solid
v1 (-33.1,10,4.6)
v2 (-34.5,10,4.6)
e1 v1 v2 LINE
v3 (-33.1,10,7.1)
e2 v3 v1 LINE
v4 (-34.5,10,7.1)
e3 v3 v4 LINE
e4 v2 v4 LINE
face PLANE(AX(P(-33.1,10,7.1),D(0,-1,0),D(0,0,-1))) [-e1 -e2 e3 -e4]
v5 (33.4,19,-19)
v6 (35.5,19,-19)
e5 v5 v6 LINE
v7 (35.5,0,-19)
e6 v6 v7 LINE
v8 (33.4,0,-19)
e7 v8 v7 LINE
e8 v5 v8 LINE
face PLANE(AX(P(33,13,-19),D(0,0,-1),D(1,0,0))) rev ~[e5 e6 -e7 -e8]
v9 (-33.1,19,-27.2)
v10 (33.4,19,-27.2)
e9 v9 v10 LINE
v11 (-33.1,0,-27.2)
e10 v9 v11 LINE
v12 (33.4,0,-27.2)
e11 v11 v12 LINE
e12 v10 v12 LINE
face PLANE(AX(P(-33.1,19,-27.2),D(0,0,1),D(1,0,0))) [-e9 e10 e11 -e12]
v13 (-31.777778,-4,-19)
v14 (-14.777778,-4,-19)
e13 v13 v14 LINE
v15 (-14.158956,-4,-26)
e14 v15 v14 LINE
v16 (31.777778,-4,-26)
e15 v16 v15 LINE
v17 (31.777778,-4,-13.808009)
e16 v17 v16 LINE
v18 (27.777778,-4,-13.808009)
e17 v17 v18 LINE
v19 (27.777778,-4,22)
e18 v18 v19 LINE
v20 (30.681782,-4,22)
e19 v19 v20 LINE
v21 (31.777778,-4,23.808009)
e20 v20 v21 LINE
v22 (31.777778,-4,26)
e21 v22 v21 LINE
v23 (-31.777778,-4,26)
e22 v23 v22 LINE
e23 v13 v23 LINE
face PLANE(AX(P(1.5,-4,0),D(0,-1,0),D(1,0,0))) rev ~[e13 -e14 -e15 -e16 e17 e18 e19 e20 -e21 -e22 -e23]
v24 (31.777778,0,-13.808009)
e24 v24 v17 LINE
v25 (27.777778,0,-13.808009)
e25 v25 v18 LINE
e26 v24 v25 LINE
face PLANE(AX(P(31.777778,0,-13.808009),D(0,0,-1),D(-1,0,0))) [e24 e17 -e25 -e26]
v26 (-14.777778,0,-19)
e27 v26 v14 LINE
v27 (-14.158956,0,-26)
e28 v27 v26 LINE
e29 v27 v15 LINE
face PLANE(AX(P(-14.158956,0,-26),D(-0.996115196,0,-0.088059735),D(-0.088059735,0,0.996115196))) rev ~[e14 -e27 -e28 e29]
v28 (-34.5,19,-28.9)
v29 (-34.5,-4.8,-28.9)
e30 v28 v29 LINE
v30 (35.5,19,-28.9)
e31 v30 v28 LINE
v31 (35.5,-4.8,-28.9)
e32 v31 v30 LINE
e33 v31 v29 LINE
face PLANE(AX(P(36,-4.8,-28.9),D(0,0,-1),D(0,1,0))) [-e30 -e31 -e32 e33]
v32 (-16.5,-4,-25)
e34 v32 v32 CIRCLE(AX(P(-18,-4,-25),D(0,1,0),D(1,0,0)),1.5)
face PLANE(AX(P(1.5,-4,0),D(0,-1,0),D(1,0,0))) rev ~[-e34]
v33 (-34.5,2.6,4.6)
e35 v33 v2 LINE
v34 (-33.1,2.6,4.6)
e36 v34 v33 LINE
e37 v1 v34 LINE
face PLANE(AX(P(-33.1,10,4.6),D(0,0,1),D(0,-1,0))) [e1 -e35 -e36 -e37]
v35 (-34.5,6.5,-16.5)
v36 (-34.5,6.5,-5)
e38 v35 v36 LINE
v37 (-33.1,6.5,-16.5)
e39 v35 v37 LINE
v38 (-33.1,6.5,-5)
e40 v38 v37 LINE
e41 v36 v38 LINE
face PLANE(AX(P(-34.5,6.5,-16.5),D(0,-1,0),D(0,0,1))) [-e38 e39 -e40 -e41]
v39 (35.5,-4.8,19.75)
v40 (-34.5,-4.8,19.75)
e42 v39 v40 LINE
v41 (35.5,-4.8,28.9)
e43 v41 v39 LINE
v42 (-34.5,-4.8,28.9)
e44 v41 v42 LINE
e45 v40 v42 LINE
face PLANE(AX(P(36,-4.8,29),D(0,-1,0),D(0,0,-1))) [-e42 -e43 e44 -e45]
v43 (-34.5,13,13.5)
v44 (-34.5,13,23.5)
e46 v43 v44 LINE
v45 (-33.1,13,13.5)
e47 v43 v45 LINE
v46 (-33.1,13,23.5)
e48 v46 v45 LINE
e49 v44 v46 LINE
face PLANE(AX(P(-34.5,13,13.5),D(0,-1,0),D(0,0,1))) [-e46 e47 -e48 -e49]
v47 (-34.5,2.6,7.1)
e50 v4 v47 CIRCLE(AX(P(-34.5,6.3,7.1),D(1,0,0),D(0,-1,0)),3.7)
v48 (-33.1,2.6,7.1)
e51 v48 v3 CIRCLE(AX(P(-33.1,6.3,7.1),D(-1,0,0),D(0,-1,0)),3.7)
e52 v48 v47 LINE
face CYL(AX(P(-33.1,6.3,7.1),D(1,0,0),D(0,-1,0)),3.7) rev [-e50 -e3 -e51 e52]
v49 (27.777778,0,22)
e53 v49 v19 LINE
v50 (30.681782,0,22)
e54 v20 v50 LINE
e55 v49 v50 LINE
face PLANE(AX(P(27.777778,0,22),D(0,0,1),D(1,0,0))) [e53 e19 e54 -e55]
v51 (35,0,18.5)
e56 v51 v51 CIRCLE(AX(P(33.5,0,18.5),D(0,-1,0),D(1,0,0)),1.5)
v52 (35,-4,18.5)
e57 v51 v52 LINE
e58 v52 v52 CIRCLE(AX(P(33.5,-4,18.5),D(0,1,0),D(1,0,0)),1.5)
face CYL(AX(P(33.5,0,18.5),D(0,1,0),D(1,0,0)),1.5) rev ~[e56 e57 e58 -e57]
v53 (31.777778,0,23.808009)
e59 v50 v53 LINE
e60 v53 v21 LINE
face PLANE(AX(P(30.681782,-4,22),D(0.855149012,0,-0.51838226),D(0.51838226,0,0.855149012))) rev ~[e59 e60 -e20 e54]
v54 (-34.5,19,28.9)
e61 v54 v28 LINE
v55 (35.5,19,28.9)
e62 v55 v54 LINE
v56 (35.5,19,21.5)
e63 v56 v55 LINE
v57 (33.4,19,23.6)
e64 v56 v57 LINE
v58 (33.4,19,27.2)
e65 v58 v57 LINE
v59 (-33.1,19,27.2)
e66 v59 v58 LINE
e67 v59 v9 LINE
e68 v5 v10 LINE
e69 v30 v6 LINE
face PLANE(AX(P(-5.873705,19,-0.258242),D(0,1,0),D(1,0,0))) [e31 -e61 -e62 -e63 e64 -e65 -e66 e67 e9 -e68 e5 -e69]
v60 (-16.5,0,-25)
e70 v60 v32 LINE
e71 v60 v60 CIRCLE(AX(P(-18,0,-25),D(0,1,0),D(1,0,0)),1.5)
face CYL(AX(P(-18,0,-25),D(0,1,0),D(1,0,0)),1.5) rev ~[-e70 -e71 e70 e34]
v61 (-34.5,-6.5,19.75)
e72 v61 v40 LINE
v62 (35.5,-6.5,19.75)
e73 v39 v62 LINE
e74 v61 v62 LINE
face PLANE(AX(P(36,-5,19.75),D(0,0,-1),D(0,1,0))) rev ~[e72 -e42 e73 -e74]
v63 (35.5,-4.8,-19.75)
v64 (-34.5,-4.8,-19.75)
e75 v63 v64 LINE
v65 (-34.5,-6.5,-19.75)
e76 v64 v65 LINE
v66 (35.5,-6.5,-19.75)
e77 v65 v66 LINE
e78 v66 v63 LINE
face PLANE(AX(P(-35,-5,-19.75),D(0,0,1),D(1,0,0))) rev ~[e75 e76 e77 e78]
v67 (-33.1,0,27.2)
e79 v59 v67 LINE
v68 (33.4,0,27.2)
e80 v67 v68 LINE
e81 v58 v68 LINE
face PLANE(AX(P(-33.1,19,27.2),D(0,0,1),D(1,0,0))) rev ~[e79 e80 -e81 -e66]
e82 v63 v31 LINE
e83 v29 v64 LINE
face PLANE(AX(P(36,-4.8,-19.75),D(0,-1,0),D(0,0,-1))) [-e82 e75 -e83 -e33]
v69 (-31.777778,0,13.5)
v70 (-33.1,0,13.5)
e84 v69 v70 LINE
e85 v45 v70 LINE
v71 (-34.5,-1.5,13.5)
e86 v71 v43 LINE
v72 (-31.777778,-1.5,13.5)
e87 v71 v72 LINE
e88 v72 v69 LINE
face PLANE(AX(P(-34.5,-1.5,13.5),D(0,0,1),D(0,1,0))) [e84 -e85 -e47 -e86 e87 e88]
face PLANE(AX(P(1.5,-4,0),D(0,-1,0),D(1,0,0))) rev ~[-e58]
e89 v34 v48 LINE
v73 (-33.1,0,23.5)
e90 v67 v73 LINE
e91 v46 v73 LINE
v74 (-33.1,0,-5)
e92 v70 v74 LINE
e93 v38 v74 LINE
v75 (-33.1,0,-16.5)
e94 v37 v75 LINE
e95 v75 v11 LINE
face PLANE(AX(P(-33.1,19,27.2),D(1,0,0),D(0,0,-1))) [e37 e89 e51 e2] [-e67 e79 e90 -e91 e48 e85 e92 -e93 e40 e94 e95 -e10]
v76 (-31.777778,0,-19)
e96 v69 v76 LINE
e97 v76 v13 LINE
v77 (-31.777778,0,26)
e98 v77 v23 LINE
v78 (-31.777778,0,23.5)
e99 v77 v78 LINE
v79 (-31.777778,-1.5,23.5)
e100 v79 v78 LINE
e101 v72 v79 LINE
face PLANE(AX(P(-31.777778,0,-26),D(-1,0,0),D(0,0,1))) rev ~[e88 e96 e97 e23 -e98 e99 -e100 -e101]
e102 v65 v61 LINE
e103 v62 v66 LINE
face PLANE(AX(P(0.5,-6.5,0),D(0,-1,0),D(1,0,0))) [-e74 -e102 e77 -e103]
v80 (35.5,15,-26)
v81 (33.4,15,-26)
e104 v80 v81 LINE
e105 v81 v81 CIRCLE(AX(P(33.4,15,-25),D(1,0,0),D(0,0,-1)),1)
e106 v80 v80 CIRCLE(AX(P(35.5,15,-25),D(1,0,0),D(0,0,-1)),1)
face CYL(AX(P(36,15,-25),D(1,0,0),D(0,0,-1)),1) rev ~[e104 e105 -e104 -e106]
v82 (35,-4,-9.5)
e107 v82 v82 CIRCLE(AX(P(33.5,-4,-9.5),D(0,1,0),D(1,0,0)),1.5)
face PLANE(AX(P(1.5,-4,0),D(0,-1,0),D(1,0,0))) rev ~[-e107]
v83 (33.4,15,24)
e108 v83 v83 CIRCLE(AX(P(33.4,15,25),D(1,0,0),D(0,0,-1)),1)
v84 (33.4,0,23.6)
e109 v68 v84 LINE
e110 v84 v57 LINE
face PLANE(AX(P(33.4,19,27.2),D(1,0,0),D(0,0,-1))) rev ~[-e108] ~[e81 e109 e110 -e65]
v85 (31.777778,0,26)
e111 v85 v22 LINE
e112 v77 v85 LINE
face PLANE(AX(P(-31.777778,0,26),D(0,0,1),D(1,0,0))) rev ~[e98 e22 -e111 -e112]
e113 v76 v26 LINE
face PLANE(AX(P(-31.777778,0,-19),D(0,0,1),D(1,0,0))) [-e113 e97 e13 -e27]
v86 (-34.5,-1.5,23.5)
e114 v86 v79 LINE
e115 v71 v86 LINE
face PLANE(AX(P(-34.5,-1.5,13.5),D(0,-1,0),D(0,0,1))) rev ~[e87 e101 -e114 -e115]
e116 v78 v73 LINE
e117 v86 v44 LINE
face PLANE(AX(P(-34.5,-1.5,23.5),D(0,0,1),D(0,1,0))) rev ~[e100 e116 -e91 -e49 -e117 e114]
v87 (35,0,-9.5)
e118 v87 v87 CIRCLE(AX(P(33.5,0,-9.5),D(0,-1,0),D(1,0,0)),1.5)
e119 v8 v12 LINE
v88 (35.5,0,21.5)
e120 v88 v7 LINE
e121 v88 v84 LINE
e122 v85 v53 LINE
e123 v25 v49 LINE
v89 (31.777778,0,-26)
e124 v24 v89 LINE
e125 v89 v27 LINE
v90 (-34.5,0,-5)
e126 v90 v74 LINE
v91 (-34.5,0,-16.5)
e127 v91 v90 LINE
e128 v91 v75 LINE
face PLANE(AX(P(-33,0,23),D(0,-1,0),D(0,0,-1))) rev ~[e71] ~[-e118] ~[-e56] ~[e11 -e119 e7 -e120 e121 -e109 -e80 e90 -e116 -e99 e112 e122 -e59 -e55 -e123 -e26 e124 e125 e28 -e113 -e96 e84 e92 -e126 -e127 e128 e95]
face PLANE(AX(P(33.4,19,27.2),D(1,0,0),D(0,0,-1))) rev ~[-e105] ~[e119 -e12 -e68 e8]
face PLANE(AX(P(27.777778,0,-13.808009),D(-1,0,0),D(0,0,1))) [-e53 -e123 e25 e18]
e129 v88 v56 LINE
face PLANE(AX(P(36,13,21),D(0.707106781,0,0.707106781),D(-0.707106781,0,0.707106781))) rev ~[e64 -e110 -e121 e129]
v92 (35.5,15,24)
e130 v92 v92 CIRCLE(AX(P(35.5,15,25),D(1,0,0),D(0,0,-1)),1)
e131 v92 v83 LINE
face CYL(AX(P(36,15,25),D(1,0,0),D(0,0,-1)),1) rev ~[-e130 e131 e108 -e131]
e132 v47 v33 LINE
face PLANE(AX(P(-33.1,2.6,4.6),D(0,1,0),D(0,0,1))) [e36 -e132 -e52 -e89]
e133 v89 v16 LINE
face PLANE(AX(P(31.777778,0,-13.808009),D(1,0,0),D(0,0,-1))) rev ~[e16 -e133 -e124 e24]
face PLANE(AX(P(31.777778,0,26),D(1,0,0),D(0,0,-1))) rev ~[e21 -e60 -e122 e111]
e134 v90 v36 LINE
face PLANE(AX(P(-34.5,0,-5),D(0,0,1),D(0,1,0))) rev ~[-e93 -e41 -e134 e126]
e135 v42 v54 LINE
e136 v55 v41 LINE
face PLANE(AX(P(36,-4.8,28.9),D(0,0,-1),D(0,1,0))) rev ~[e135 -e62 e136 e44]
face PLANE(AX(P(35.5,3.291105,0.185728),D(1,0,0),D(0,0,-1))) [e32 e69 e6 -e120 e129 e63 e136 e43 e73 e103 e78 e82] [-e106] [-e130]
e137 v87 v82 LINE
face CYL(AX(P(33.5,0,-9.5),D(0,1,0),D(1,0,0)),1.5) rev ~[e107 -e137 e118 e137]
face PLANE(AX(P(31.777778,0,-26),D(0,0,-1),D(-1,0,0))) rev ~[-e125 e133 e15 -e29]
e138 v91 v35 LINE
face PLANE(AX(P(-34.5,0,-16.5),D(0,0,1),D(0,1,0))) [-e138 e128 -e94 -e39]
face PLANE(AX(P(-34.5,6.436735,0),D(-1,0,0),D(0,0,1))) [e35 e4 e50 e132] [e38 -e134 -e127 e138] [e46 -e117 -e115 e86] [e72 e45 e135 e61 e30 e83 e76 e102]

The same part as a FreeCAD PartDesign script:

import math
import FreeCAD as App
import Part
import Sketcher
from FreeCAD import Vector
Q = App.Units.Quantity


def edges_at(feature, points):
    """Names of the edges that pass closest to the given points."""
    edges = feature.Shape.Edges
    near = lambda p: min(range(len(edges)), key=lambda i: edges[i].distToShape(Part.Vertex(*p))[0])
    return sorted({f"Edge{near(p) + 1}" for p in points})


def add_polygon(sketch, points):
    """Adds a closed chain of lines whose ends are joined by coincident constraints."""
    first, n = sketch.GeometryCount, len(points)
    for a, b in zip(points, points[1:] + points[:1]):
        sketch.addGeometry(Part.LineSegment(App.Vector(*a, 0), App.Vector(*b, 0)), False)
    for i in range(n):
        sketch.addConstraint(Sketcher.Constraint("Coincident", first + i, 2, first + (i + 1) % n, 1))

doc = App.newDocument("Part")
body = doc.addObject("PartDesign::Body", "Body")

sketch1 = body.newObject("Sketcher::SketchObject", "Sketch")
sketch1.AttachmentSupport = (doc.getObject("XZ_Plane"), [""])
sketch1.MapMode = "FlatFace"
add_polygon(sketch1, [(-33, 27), (33, 27), (33, 24), (36, 21), (36, -11), (33, -14), (33, -27), (-33, -27)])
add_polygon(sketch1, [(-31.8, -26), (31.8, -26), (31.8, -13.8), (35, -10.6), (35, 20.6), (31.8, 23.8), (31.8, 26), (-31.8, 26)])
sketch1.addConstraint([
    Sketcher.Constraint("Horizontal", 0),
    Sketcher.Constraint("Vertical", 1),
    Sketcher.Constraint("Vertical", 3),
    Sketcher.Constraint("Vertical", 5),
    Sketcher.Constraint("Horizontal", 6),
    Sketcher.Constraint("Vertical", 7),
    Sketcher.Constraint("Horizontal", 8),
    Sketcher.Constraint("Vertical", 9),
    Sketcher.Constraint("Vertical", 11),
    Sketcher.Constraint("Vertical", 13),
    Sketcher.Constraint("Horizontal", 14),
    Sketcher.Constraint("Vertical", 15),
    Sketcher.Constraint("Symmetric", 0, 2, 6, 2, -1, 1),
    Sketcher.Constraint("Symmetric", 8, 2, 14, 2, -1, 1),
    Sketcher.Constraint("Perpendicular", 2, 4),
    Sketcher.Constraint("Parallel", 4, 10),
    Sketcher.Constraint("Perpendicular", 10, 12),
    Sketcher.Constraint("Vertical", 1, 2, 4, 2),
    Sketcher.Constraint("Vertical", 9, 2, 12, 2),
    Sketcher.Constraint("Equal", 2, 4),
    Sketcher.Constraint("DistanceX", 0, 1, 0, 2, 66.0),
    Sketcher.Constraint("DistanceY", 1, 2, 1, 1, 3.0),
    Sketcher.Constraint("DistanceY", 3, 2, 3, 1, 32.0),
    Sketcher.Constraint("DistanceY", 5, 2, 5, 1, 13.0),
    Sketcher.Constraint("DistanceY", 7, 1, 7, 2, 54.0),
    Sketcher.Constraint("DistanceY", 15, 2, 15, 1, 52.0),
    Sketcher.Constraint("DistanceX", -1, 1, 10, 2, 35.0),
    Sketcher.Constraint("DistanceY", 9, 1, 9, 2, 12.191991),
    Sketcher.Constraint("DistanceY", 13, 1, 13, 2, 2.191991),
    Sketcher.Constraint("Distance", 10, 4.55691),
])
pad1 = body.newObject("PartDesign::Pad", "Pad")
pad1.Profile = sketch1
pad1.Length = 4

sketch2 = body.newObject("Sketcher::SketchObject", "Sketch001")
sketch2.AttachmentSupport = (doc.getObject("XZ_Plane"), [""])
sketch2.MapMode = "FlatFace"
add_polygon(sketch2, [(-35, -29), (-35, 29), (38, 29), (38, -29)])
add_polygon(sketch2, [(-33, -27), (33, -27), (33, -14), (36, -11), (36, 21), (33, 24), (33, 27), (-33, 27)])
sketch2.addConstraint([
    Sketcher.Constraint("Vertical", 0),
    Sketcher.Constraint("Horizontal", 1),
    Sketcher.Constraint("Vertical", 2),
    Sketcher.Constraint("Horizontal", 3),
    Sketcher.Constraint("Horizontal", 4),
    Sketcher.Constraint("Vertical", 5),
    Sketcher.Constraint("Vertical", 7),
    Sketcher.Constraint("Vertical", 9),
    Sketcher.Constraint("Horizontal", 10),
    Sketcher.Constraint("Vertical", 11),
    Sketcher.Constraint("Symmetric", 4, 2, 10, 2, -1, 1),
    Sketcher.Constraint("Perpendicular", 6, 8),
    Sketcher.Constraint("Vertical", 5, 2, 8, 2),
    Sketcher.Constraint("Equal", 6, 8),
    Sketcher.Constraint("DistanceX", 1, 1, 1, 2, 73.0),
    Sketcher.Constraint("DistanceX", 4, 1, 4, 2, 66.0),
    Sketcher.Constraint("DistanceY", 0, 1, 0, 2, 58.0),
    Sketcher.Constraint("DistanceY", 5, 1, 5, 2, 13.0),
    Sketcher.Constraint("DistanceY", 7, 1, 7, 2, 32.0),
    Sketcher.Constraint("DistanceY", 9, 1, 9, 2, 3.0),
    Sketcher.Constraint("DistanceY", 11, 2, 11, 1, 54.0),
    Sketcher.Constraint("DistanceX", 0, 2, -1, 1, 35.0),
    Sketcher.Constraint("DistanceY", -1, 1, 0, 2, 29.0),
])
pad2 = body.newObject("PartDesign::Pad", "Pad001")
pad2.Profile = sketch2
pad2.Type = "TwoLengths"
pad2.Length = 13
pad2.Length2 = 4
pad2.Reversed = True

sketch3 = body.newObject("Sketcher::SketchObject", "Sketch002")
sketch3.AttachmentSupport = (doc.getObject("XZ_Plane"), [""])
sketch3.MapMode = "FlatFace"
add_polygon(sketch3, [(-31.8, -26), (-31.8, -19), (-14.8, -19), (-14.8, -26)])
add_polygon(sketch3, [(31.8, -13.8), (27.8, -13.8), (27.8, 22), (33.6, 22), (35, 20.6), (35, -10.6)])
sketch3.addConstraint([
    Sketcher.Constraint("Vertical", 0),
    Sketcher.Constraint("Horizontal", 1),
    Sketcher.Constraint("Vertical", 2),
    Sketcher.Constraint("Horizontal", 3),
    Sketcher.Constraint("Horizontal", 4),
    Sketcher.Constraint("Vertical", 5),
    Sketcher.Constraint("Horizontal", 6),
    Sketcher.Constraint("Vertical", 8),
    Sketcher.Constraint("Perpendicular", 7, 9),
    Sketcher.Constraint("DistanceX", 1, 1, 1, 2, 17.0),
    Sketcher.Constraint("DistanceX", 4, 2, 4, 1, 4.0),
    Sketcher.Constraint("DistanceY", 0, 1, 0, 2, 7.0),
    Sketcher.Constraint("Angle", 7, Q("-45 deg")),
    Sketcher.Constraint("Distance", 7, 2.0),
    Sketcher.Constraint("DistanceY", 0, 2, -1, 1, 19.0),
    Sketcher.Constraint("DistanceY", -1, 1, 5, 2, 22.0),
    Sketcher.Constraint("DistanceX", -1, 1, 7, 2, 35.0),
    Sketcher.Constraint("DistanceX", 6, 1, 6, 2, 5.808009),
    Sketcher.Constraint("DistanceY", 5, 1, 5, 2, 35.808009),
    Sketcher.Constraint("DistanceX", 0, 2, -1, 1, 31.777778),
])
pad3 = body.newObject("PartDesign::Pad", "Pad002")
pad3.Profile = sketch3
pad3.Length = 4

sketch4 = body.newObject("Sketcher::SketchObject", "Sketch003")
sketch4.AttachmentSupport = (doc.getObject("XZ_Plane"), [""])
sketch4.MapMode = "FlatFace"
sketch4.addGeometry([
    Part.Circle(Vector(-18, -25, 0), Vector(0, 0, 1), 1.5),
    Part.Circle(Vector(33.5, -9.5, 0), Vector(0, 0, 1), 1.5),
    Part.Circle(Vector(33.5, 18.5, 0), Vector(0, 0, 1), 1.5),
], False)
sketch4.addConstraint([
    Sketcher.Constraint("Equal", 0, 1),
    Sketcher.Constraint("Equal", 1, 2),
    Sketcher.Constraint("Vertical", 1, 3, 2, 3),
    Sketcher.Constraint("Diameter", 0, 3.0),
    Sketcher.Constraint("DistanceX", 0, 3, -1, 1, 18.0),
    Sketcher.Constraint("DistanceY", 0, 3, -1, 1, 25.0),
    Sketcher.Constraint("DistanceY", 1, 3, 2, 3, 28.0),
    Sketcher.Constraint("DistanceX", -1, 1, 1, 3, 33.5),
    Sketcher.Constraint("DistanceY", 1, 3, -1, 1, 9.5),
])
pocket1 = body.newObject("PartDesign::Pocket", "Pocket")
pocket1.Profile = sketch4
pocket1.Length = 4
pocket1.Reversed = True

sketch5 = body.newObject("Sketcher::SketchObject", "Sketch004")
sketch5.AttachmentSupport = (doc.getObject("XZ_Plane"), [""])
sketch5.MapMode = "FlatFace"
sketch5.AttachmentOffset = App.Placement(Vector(0, 0, 4), App.Rotation())
add_polygon(sketch5, [(33.6, 22), (31.8, 23.8), (30.7, 22)])
sketch5.addConstraint([
    Sketcher.Constraint("Horizontal", 2),
    Sketcher.Constraint("Angle", 0, Q("135 deg")),
    Sketcher.Constraint("DistanceY", -1, 1, 1, 2, 22.0),
    Sketcher.Constraint("Distance", 0, 2.55691),
    Sketcher.Constraint("Distance", 1, 2.114262),
    Sketcher.Constraint("DistanceX", -1, 1, 0, 2, 31.777778),
])
pad4 = body.newObject("PartDesign::Pad", "Pad003")
pad4.Profile = sketch5
pad4.Length = 4
pad4.Reversed = True

sketch6 = body.newObject("Sketcher::SketchObject", "Sketch005")
sketch6.AttachmentSupport = (doc.getObject("XZ_Plane"), [""])
sketch6.MapMode = "FlatFace"
add_polygon(sketch6, [(-14.8, -19), (-14.2, -26), (-14.8, -26)])
sketch6.addConstraint([
    Sketcher.Constraint("Horizontal", 1),
    Sketcher.Constraint("Vertical", 2),
    Sketcher.Constraint("DistanceY", 2, 1, 2, 2, 7.0),
    Sketcher.Constraint("DistanceY", 0, 2, -1, 1, 26.0),
    Sketcher.Constraint("Distance", 0, 7.0273),
    Sketcher.Constraint("DistanceX", 0, 2, -1, 1, 14.158956),
])
pad5 = body.newObject("PartDesign::Pad", "Pad004")
pad5.Profile = sketch6
pad5.Length = 4

sketch7 = body.newObject("Sketcher::SketchObject", "Sketch006")
sketch7.AttachmentSupport = (doc.getObject("XZ_Plane"), [""])
sketch7.MapMode = "FlatFace"
sketch7.AttachmentOffset = App.Placement(Vector(0, 0, 4), App.Rotation())
add_polygon(sketch7, [(-35, 29), (-35, -29), (38, -29), (38, 29)])
sketch7.addConstraint([
    Sketcher.Constraint("Vertical", 0),
    Sketcher.Constraint("Horizontal", 1),
    Sketcher.Constraint("Vertical", 2),
    Sketcher.Constraint("Horizontal", 3),
    Sketcher.Constraint("DistanceX", 1, 1, 1, 2, 73.0),
    Sketcher.Constraint("DistanceY", 0, 2, 0, 1, 58.0),
    Sketcher.Constraint("DistanceX", 0, 2, -1, 1, 35.0),
    Sketcher.Constraint("DistanceY", 0, 2, -1, 1, 29.0),
])
pad6 = body.newObject("PartDesign::Pad", "Pad005")
pad6.Profile = sketch7
pad6.Length = 1

sketch8 = body.newObject("Sketcher::SketchObject", "Sketch007")
sketch8.AttachmentSupport = (doc.getObject("YZ_Plane"), [""])
sketch8.MapMode = "FlatFace"
sketch8.AttachmentOffset = App.Placement(Vector(0, 0, -33), App.Rotation())
add_polygon(sketch8, [(4.5, -6), (1, -6), (1, -14.5), (4.5, -14.5)])
sketch8.addConstraint([
    Sketcher.Constraint("Horizontal", 0),
    Sketcher.Constraint("Vertical", 1),
    Sketcher.Constraint("Horizontal", 2),
    Sketcher.Constraint("Vertical", 3),
    Sketcher.Constraint("DistanceX", 0, 2, 0, 1, 3.5),
    Sketcher.Constraint("DistanceY", 1, 2, 1, 1, 8.5),
    Sketcher.Constraint("DistanceX", -1, 1, 0, 2, 1.0),
    Sketcher.Constraint("DistanceY", 0, 2, -1, 1, 6.0),
])
pocket2 = body.newObject("PartDesign::Pocket", "Pocket001")
pocket2.Profile = sketch8
pocket2.Length = 2
doc.recompute()

chamfer = body.newObject("PartDesign::Chamfer", "Chamfer")
chamfer.Base = (pocket2, edges_at(pocket2, [
    (-35, 4.5, -10.25),
    (-35, 2.75, -14.5),
    (-35, 1, -10.25),
    (-35, 2.75, -6),
]))
chamfer.Size = 0.5

sketch9 = body.newObject("Sketcher::SketchObject", "Sketch008")
sketch9.AttachmentSupport = (doc.getObject("YZ_Plane"), [""])
sketch9.MapMode = "FlatFace"
sketch9.AttachmentOffset = App.Placement(Vector(0, 0, -33), App.Rotation())
add_polygon(sketch9, [(12, 23), (0, 23), (0, 14), (12, 14)])
sketch9.addConstraint([
    Sketcher.Constraint("Horizontal", 0),
    Sketcher.Constraint("Vertical", 1),
    Sketcher.Constraint("Horizontal", 2),
    Sketcher.Constraint("Vertical", 3),
    Sketcher.Constraint("PointOnObject", 0, 2, -2),
    Sketcher.Constraint("DistanceX", 0, 2, 0, 1, 12.0),
    Sketcher.Constraint("DistanceY", 1, 2, 1, 1, 9.0),
    Sketcher.Constraint("DistanceY", -1, 1, 0, 2, 23.0),
])
pocket3 = body.newObject("PartDesign::Pocket", "Pocket002")
pocket3.Profile = sketch9
pocket3.Length = 2
doc.recompute()

chamfer2 = body.newObject("PartDesign::Chamfer", "Chamfer001")
chamfer2.Base = (pocket3, edges_at(pocket3, [
    (-35, 6, 23),
    (-35, 12, 18.5),
    (-35, 6, 14),
    (-35, 0, 18.5),
]))
chamfer2.Size = 0.5
doc.recompute()

chamfer3 = body.newObject("PartDesign::Chamfer", "Chamfer002")
chamfer3.Base = (chamfer2, edges_at(chamfer2, [(-33, 4.5, -10.25), (-33, 1, -10.25), (-33, 12, 18.5)]))
chamfer3.Size = 0.5
doc.recompute()

chamfer4 = body.newObject("PartDesign::Chamfer", "Chamfer003")
chamfer4.Base = (chamfer3, edges_at(chamfer3, [
    (-33, 6.25, 14),
    (-33, 6.25, 23),
    (-33, 2.75, -6),
    (-33, 2.75, -14.5),
]))
chamfer4.Size = 0.5

sketch10 = body.newObject("Sketcher::SketchObject", "Sketch009")
sketch10.AttachmentSupport = (doc.getObject("YZ_Plane"), [""])
sketch10.MapMode = "FlatFace"
sketch10.AttachmentOffset = App.Placement(Vector(0, 0, -33), App.Rotation())
sketch10.addGeometry([
    Part.LineSegment(Vector(8.6, 6, 0), Vector(8.6, 7.1, 0)),
    Part.ArcOfCircle(Part.Circle(Vector(6.3, 7.1, 0), Vector(0, 0, 1), 2.3), math.radians(0), math.radians(180)),
    Part.LineSegment(Vector(4, 7.1, 0), Vector(4, 6, 0)),
    Part.LineSegment(Vector(4, 6, 0), Vector(8.6, 6, 0)),
], False)
sketch10.addConstraint([
    Sketcher.Constraint("Tangent", 0, 2, 1, 1),
    Sketcher.Constraint("Tangent", 1, 2, 2, 1),
    Sketcher.Constraint("Coincident", 2, 2, 3, 1),
    Sketcher.Constraint("Coincident", 3, 2, 0, 1),
    Sketcher.Constraint("Vertical", 0),
    Sketcher.Constraint("Vertical", 2),
    Sketcher.Constraint("Horizontal", 3),
    Sketcher.Constraint("Radius", 1, 2.3),
    Sketcher.Constraint("DistanceY", 0, 1, 0, 2, 1.1),
    Sketcher.Constraint("DistanceX", -1, 1, 1, 2, 4.0),
    Sketcher.Constraint("DistanceY", -1, 1, 2, 2, 6.0),
])
pocket4 = body.newObject("PartDesign::Pocket", "Pocket003")
pocket4.Profile = sketch10
pocket4.Length = 2
doc.recompute()

chamfer5 = body.newObject("PartDesign::Chamfer", "Chamfer004")
chamfer5.Base = (pocket4, edges_at(pocket4, [
    (-35, 6.3, 6),
    (-35, 4, 6.55),
    (-35, 6.3, 9.4),
    (-35, 8.6, 6.55),
]))
chamfer5.Size = 0.5
doc.recompute()

chamfer6 = body.newObject("PartDesign::Chamfer", "Chamfer005")
chamfer6.Base = (chamfer5, edges_at(chamfer5, [
    (-33, 6.3, 6),
    (-33, 8.6, 6.55),
    (-33, 6.3, 9.4),
    (-33, 4, 6.55),
]))
chamfer6.Size = 0.5

sketch11 = body.newObject("Sketcher::SketchObject", "Sketch010")
sketch11.AttachmentSupport = (doc.getObject("XZ_Plane"), [""])
sketch11.MapMode = "FlatFace"
sketch11.AttachmentOffset = App.Placement(Vector(0, 0, -13), App.Rotation())
add_polygon(sketch11, [(36, -29), (36, 29), (38, 29), (38, -29)])
sketch11.addConstraint([
    Sketcher.Constraint("Vertical", 0),
    Sketcher.Constraint("Horizontal", 1),
    Sketcher.Constraint("Vertical", 2),
    Sketcher.Constraint("Horizontal", 3),
    Sketcher.Constraint("DistanceX", 1, 1, 1, 2, 2.0),
    Sketcher.Constraint("DistanceY", 0, 1, 0, 2, 58.0),
    Sketcher.Constraint("DistanceX", -1, 1, 0, 2, 36.0),
    Sketcher.Constraint("DistanceY", -1, 1, 0, 2, 29.0),
])
pocket5 = body.newObject("PartDesign::Pocket", "Pocket004")
pocket5.Profile = sketch11
pocket5.Type = "ThroughAll"
pocket5.Reversed = True

sketch12 = body.newObject("Sketcher::SketchObject", "Sketch011")
sketch12.AttachmentSupport = (doc.getObject("XZ_Plane"), [""])
sketch12.MapMode = "FlatFace"
sketch12.AttachmentOffset = App.Placement(Vector(0, 0, -13), App.Rotation())
add_polygon(sketch12, [(33, -19), (33, -14), (36, -11), (36, -19)])
sketch12.addConstraint([
    Sketcher.Constraint("Vertical", 0),
    Sketcher.Constraint("Vertical", 2),
    Sketcher.Constraint("Horizontal", 3),
    Sketcher.Constraint("DistanceX", 3, 2, 3, 1, 3.0),
    Sketcher.Constraint("DistanceY", 0, 1, 0, 2, 5.0),
    Sketcher.Constraint("DistanceY", 2, 2, 2, 1, 8.0),
    Sketcher.Constraint("DistanceX", -1, 1, 0, 2, 33.0),
    Sketcher.Constraint("DistanceY", 0, 2, -1, 1, 14.0),
])
pocket6 = body.newObject("PartDesign::Pocket", "Pocket005")
pocket6.Profile = sketch12
pocket6.Length = 13
pocket6.Reversed = True

sketch13 = body.newObject("Sketcher::SketchObject", "Sketch012")
sketch13.AttachmentSupport = (doc.getObject("XZ_Plane"), [""])
sketch13.MapMode = "FlatFace"
sketch13.AttachmentOffset = App.Placement(Vector(0, 0, -13), App.Rotation())
add_polygon(sketch13, [(33, -19), (36, -19), (36, -29), (-35, -29), (-35, 29), (36, 29), (36, 21), (33, 24), (33, 27), (-33, 27), (-33, -27), (33, -27)])
sketch13.addConstraint([
    Sketcher.Constraint("Horizontal", 0),
    Sketcher.Constraint("Vertical", 1),
    Sketcher.Constraint("Horizontal", 2),
    Sketcher.Constraint("Vertical", 3),
    Sketcher.Constraint("Horizontal", 4),
    Sketcher.Constraint("Vertical", 5),
    Sketcher.Constraint("Vertical", 7),
    Sketcher.Constraint("Horizontal", 8),
    Sketcher.Constraint("Vertical", 9),
    Sketcher.Constraint("Horizontal", 10),
    Sketcher.Constraint("Vertical", 11),
    Sketcher.Constraint("Symmetric", 7, 2, 9, 2, -1, 1),
    Sketcher.Constraint("Symmetric", 1, 2, 4, 2, -1),
    Sketcher.Constraint("Vertical", 7, 2, 10, 2),
    Sketcher.Constraint("Equal", 0, 7),
    Sketcher.Constraint("Equal", 5, 11),
    Sketcher.Constraint("DistanceX", 0, 1, 0, 2, 3.0),
    Sketcher.Constraint("DistanceX", 2, 2, 2, 1, 71.0),
    Sketcher.Constraint("DistanceX", 8, 2, 8, 1, 66.0),
    Sketcher.Constraint("DistanceY", 1, 2, 1, 1, 10.0),
    Sketcher.Constraint("DistanceY", 3, 1, 3, 2, 58.0),
    Sketcher.Constraint("DistanceY", 5, 2, 5, 1, 8.0),
])
pad7 = body.newObject("PartDesign::Pad", "Pad006")
pad7.Profile = sketch13
pad7.Length = 6
pad7.Reversed = True

sketch14 = body.newObject("Sketcher::SketchObject", "Sketch013")
sketch14.AttachmentSupport = (doc.getObject("XZ_Plane"), [""])
sketch14.MapMode = "FlatFace"
sketch14.AttachmentOffset = App.Placement(Vector(0, 0, 5), App.Rotation())
add_polygon(sketch14, [(-35, 20), (-35, -20), (36, -20), (36, 20)])
sketch14.addConstraint([
    Sketcher.Constraint("Vertical", 0),
    Sketcher.Constraint("Horizontal", 1),
    Sketcher.Constraint("Vertical", 2),
    Sketcher.Constraint("Horizontal", 3),
    Sketcher.Constraint("DistanceX", 1, 1, 1, 2, 71.0),
    Sketcher.Constraint("DistanceY", 0, 2, 0, 1, 39.5),
    Sketcher.Constraint("DistanceX", 0, 2, -1, 1, 35.0),
    Sketcher.Constraint("DistanceY", 0, 2, -1, 1, 19.75),
])
pad8 = body.newObject("PartDesign::Pad", "Pad007")
pad8.Profile = sketch14
pad8.Length = 1.5

sketch15 = body.newObject("Sketcher::SketchObject", "Sketch014")
sketch15.AttachmentSupport = (doc.getObject("YZ_Plane"), [""])
sketch15.MapMode = "FlatFace"
sketch15.AttachmentOffset = App.Placement(Vector(0, 0, 36), App.Rotation())
sketch15.addGeometry([
    Part.Circle(Vector(15, 25, 0), Vector(0, 0, 1), 1),
    Part.Circle(Vector(15, -25, 0), Vector(0, 0, 1), 1),
], False)
sketch15.addConstraint([
    Sketcher.Constraint("Equal", 0, 1),
    Sketcher.Constraint("Symmetric", 0, 3, 1, 3, -1),
    Sketcher.Constraint("Diameter", 0, 2.0),
    Sketcher.Constraint("DistanceX", -1, 1, 0, 3, 15.0),
    Sketcher.Constraint("DistanceY", -1, 1, 0, 3, 25.0),
])
pocket7 = body.newObject("PartDesign::Pocket", "Pocket006")
pocket7.Profile = sketch15
pocket7.Length = 5

sketch16 = body.newObject("Sketcher::SketchObject", "Sketch015")
sketch16.AttachmentSupport = (doc.getObject("YZ_Plane"), [""])
sketch16.MapMode = "FlatFace"
sketch16.AttachmentOffset = App.Placement(Vector(0, 0, 36), App.Rotation())
add_polygon(sketch16, [(-4.8, 29), (-5, 29), (-5, 19.75), (-4.8, 19.75)])
add_polygon(sketch16, [(-4.8, -19.75), (-5, -19.75), (-5, -29), (-4.8, -29)])
sketch16.addConstraint([
    Sketcher.Constraint("Horizontal", 0),
    Sketcher.Constraint("Vertical", 1),
    Sketcher.Constraint("Horizontal", 2),
    Sketcher.Constraint("Vertical", 3),
    Sketcher.Constraint("Horizontal", 4),
    Sketcher.Constraint("Vertical", 5),
    Sketcher.Constraint("Horizontal", 6),
    Sketcher.Constraint("Vertical", 7),
    Sketcher.Constraint("Symmetric", 1, 2, 4, 2, -1),
    Sketcher.Constraint("Symmetric", 3, 2, 6, 2, -1),
    Sketcher.Constraint("DistanceX", 0, 2, 0, 1, 0.2),
    Sketcher.Constraint("DistanceX", 0, 2, -1, 1, 5.0),
    Sketcher.Constraint("DistanceY", -1, 1, 0, 2, 29.0),
    Sketcher.Constraint("DistanceY", 1, 2, 1, 1, 9.25),
])
pocket8 = body.newObject("PartDesign::Pocket", "Pocket007")
pocket8.Profile = sketch16
pocket8.Type = "ThroughAll"

sketch17 = body.newObject("Sketcher::SketchObject", "Sketch016")
sketch17.AttachmentSupport = (doc.getObject("YZ_Plane"), [""])
sketch17.MapMode = "FlatFace"
sketch17.AttachmentOffset = App.Placement(Vector(0, 0, 36), App.Rotation())
add_polygon(sketch17, [(19, 29), (-4.8, 29), (-4.8, 28.9), (19, 28.9)])
add_polygon(sketch17, [(19, -28.9), (-4.8, -28.9), (-4.8, -29), (19, -29)])
sketch17.addConstraint([
    Sketcher.Constraint("Horizontal", 0),
    Sketcher.Constraint("Vertical", 1),
    Sketcher.Constraint("Horizontal", 2),
    Sketcher.Constraint("Vertical", 3),
    Sketcher.Constraint("Horizontal", 4),
    Sketcher.Constraint("Vertical", 5),
    Sketcher.Constraint("Horizontal", 6),
    Sketcher.Constraint("Vertical", 7),
    Sketcher.Constraint("Symmetric", 1, 2, 4, 2, -1),
    Sketcher.Constraint("Symmetric", 3, 2, 6, 2, -1),
    Sketcher.Constraint("DistanceX", 0, 2, 0, 1, 23.8),
    Sketcher.Constraint("DistanceY", 1, 2, 1, 1, 0.1),
    Sketcher.Constraint("DistanceY", -1, 1, 0, 2, 29.0),
    Sketcher.Constraint("DistanceX", -1, 1, 2, 2, 19.0),
])
pocket9 = body.newObject("PartDesign::Pocket", "Pocket008")
pocket9.Profile = sketch17
pocket9.Type = "ThroughAll"

sketch18 = body.newObject("Sketcher::SketchObject", "Sketch017")
sketch18.AttachmentSupport = (doc.getObject("YZ_Plane"), [""])
sketch18.MapMode = "FlatFace"
sketch18.AttachmentOffset = App.Placement(Vector(0, 0, 36), App.Rotation())
add_polygon(sketch18, [(-4.8, -19.8), (-4.8, -28.9), (19, -28.9), (19, -19), (0, -19), (0, 21), (19, 21), (19, 28.9), (-4.8, 28.9), (-4.8, 19.8), (-6.5, 19.8), (-6.5, -19.8)])
sketch18.addConstraint([
    Sketcher.Constraint("Vertical", 0),
    Sketcher.Constraint("Horizontal", 1),
    Sketcher.Constraint("Vertical", 2),
    Sketcher.Constraint("Horizontal", 3),
    Sketcher.Constraint("Vertical", 4),
    Sketcher.Constraint("Horizontal", 5),
    Sketcher.Constraint("Vertical", 6),
    Sketcher.Constraint("Horizontal", 7),
    Sketcher.Constraint("Vertical", 8),
    Sketcher.Constraint("Horizontal", 9),
    Sketcher.Constraint("Vertical", 10),
    Sketcher.Constraint("Horizontal", 11),
    Sketcher.Constraint("Symmetric", 1, 2, 6, 2, -1),
    Sketcher.Constraint("Symmetric", 8, 2, 11, 2, -1),
    Sketcher.Constraint("PointOnObject", 3, 2, -2),
    Sketcher.Constraint("DistanceX", 3, 2, 3, 1, 19.0),
    Sketcher.Constraint("DistanceY", 4, 1, 4, 2, 40.0),
    Sketcher.Constraint("DistanceX", 1, 1, 1, 2, 23.8),
    Sketcher.Constraint("DistanceX", 9, 2, 9, 1, 1.7),
    Sketcher.Constraint("DistanceY", 2, 1, 2, 2, 9.9),
    Sketcher.Constraint("DistanceY", 6, 1, 6, 2, 7.9),
    Sketcher.Constraint("DistanceY", 10, 2, 10, 1, 39.5),
])
pocket10 = body.newObject("PartDesign::Pocket", "Pocket009")
pocket10.Profile = sketch18
pocket10.Length = 0.5

sketch19 = body.newObject("Sketcher::SketchObject", "Sketch018")
sketch19.AttachmentSupport = (doc.getObject("YZ_Plane"), [""])
sketch19.MapMode = "FlatFace"
sketch19.AttachmentOffset = App.Placement(Vector(0, 0, -35), App.Rotation())
add_polygon(sketch19, [(19, 28.9), (19, -28.9), (-4.8, -28.9), (-4.8, -19.8), (-6.5, -19.8), (-6.5, 19.8), (-4.8, 19.8), (-4.8, 28.9)])
sketch19.addConstraint([
    Sketcher.Constraint("Vertical", 0),
    Sketcher.Constraint("Horizontal", 1),
    Sketcher.Constraint("Vertical", 2),
    Sketcher.Constraint("Horizontal", 3),
    Sketcher.Constraint("Vertical", 4),
    Sketcher.Constraint("Horizontal", 5),
    Sketcher.Constraint("Vertical", 6),
    Sketcher.Constraint("Horizontal", 7),
    Sketcher.Constraint("Symmetric", 2, 2, 5, 2, -1),
    Sketcher.Constraint("Equal", 2, 6),
    Sketcher.Constraint("DistanceX", 1, 2, 1, 1, 23.8),
    Sketcher.Constraint("DistanceX", 3, 2, 3, 1, 1.7),
    Sketcher.Constraint("DistanceY", 0, 2, 0, 1, 57.8),
    Sketcher.Constraint("DistanceY", 4, 1, 4, 2, 39.5),
    Sketcher.Constraint("DistanceX", -1, 1, 0, 2, 19.0),
])
pocket11 = body.newObject("PartDesign::Pocket", "Pocket010")
pocket11.Profile = sketch19
pocket11.Length = 0.5
pocket11.Reversed = True

sketch20 = body.newObject("Sketcher::SketchObject", "Sketch019")
sketch20.AttachmentSupport = (doc.getObject("XZ_Plane"), [""])
sketch20.MapMode = "FlatFace"
sketch20.AttachmentOffset = App.Placement(Vector(0, 0, -19), App.Rotation())
add_polygon(sketch20, [(-33, -27), (-33, 27), (33, 27), (33, -27)])
add_polygon(sketch20, [(33, 27), (-33, 27), (-33, -27), (33, -27)])
sketch20.addConstraint([
    Sketcher.Constraint("Vertical", 0),
    Sketcher.Constraint("Horizontal", 1),
    Sketcher.Constraint("Vertical", 2),
    Sketcher.Constraint("Horizontal", 3),
    Sketcher.Constraint("Horizontal", 4),
    Sketcher.Constraint("Vertical", 5),
    Sketcher.Constraint("Horizontal", 6),
    Sketcher.Constraint("Vertical", 7),
    Sketcher.Constraint("Symmetric", 4, 2, 6, 2, -1, 1),
    Sketcher.Constraint("DistanceX", 4, 2, 4, 1, 66.0),
    Sketcher.Constraint("DistanceY", 5, 2, 5, 1, 54.0),
    Sketcher.Constraint("DistanceX", 1, 1, 1, 2, 66.5),
    Sketcher.Constraint("DistanceY", 0, 1, 0, 2, 54.4),
    Sketcher.Constraint("DistanceX", 0, 2, -1, 1, 33.1),
    Sketcher.Constraint("DistanceY", -1, 1, 0, 2, 27.2),
])
pocket12 = body.newObject("PartDesign::Pocket", "Pocket011")
pocket12.Profile = sketch20
pocket12.Length = 19
pocket12.Reversed = True

sketch21 = body.newObject("Sketcher::SketchObject", "Sketch020")
sketch21.AttachmentSupport = (doc.getObject("YZ_Plane"), [""])
sketch21.MapMode = "FlatFace"
sketch21.AttachmentOffset = App.Placement(Vector(0, 0, -34.5), App.Rotation())
add_polygon(sketch21, [(6.5, -16.5), (0, -16.5), (0, -5), (6.5, -5)])
add_polygon(sketch21, [(1, -6), (1, -14.5), (4.5, -14.5), (4.5, -6)])
sketch21.addConstraint([
    Sketcher.Constraint("Horizontal", 0),
    Sketcher.Constraint("Vertical", 1),
    Sketcher.Constraint("Horizontal", 2),
    Sketcher.Constraint("Vertical", 3),
    Sketcher.Constraint("Vertical", 4),
    Sketcher.Constraint("Horizontal", 5),
    Sketcher.Constraint("Vertical", 6),
    Sketcher.Constraint("Horizontal", 7),
    Sketcher.Constraint("PointOnObject", 0, 2, -2),
    Sketcher.Constraint("DistanceX", 0, 2, 0, 1, 6.5),
    Sketcher.Constraint("DistanceX", 5, 1, 5, 2, 3.5),
    Sketcher.Constraint("DistanceY", 1, 1, 1, 2, 11.5),
    Sketcher.Constraint("DistanceY", 4, 2, 4, 1, 8.5),
    Sketcher.Constraint("DistanceY", 1, 2, -1, 1, 5.0),
    Sketcher.Constraint("DistanceX", -1, 1, 4, 2, 1.0),
    Sketcher.Constraint("DistanceY", 6, 2, -1, 1, 6.0),
])
pocket13 = body.newObject("PartDesign::Pocket", "Pocket012")
pocket13.Profile = sketch21
pocket13.Length = 7.5
pocket13.Reversed = True

sketch22 = body.newObject("Sketcher::SketchObject", "Sketch021")
sketch22.AttachmentSupport = (doc.getObject("YZ_Plane"), [""])
sketch22.MapMode = "FlatFace"
sketch22.AttachmentOffset = App.Placement(Vector(0, 0, -33.1), App.Rotation())
sketch22.addGeometry([
    Part.LineSegment(Vector(10, 4.6, 0), Vector(10, 7.1, 0)),
    Part.ArcOfCircle(Part.Circle(Vector(6.3, 7.1, 0), Vector(0, 0, 1), 3.7), math.radians(0), math.radians(180)),
    Part.LineSegment(Vector(2.6, 7.1, 0), Vector(2.6, 4.6, 0)),
    Part.LineSegment(Vector(2.6, 4.6, 0), Vector(10, 4.6, 0)),
], False)
sketch22.addConstraint([
    Sketcher.Constraint("Tangent", 0, 2, 1, 1),
    Sketcher.Constraint("Tangent", 1, 2, 2, 1),
    Sketcher.Constraint("Coincident", 2, 2, 3, 1),
    Sketcher.Constraint("Coincident", 3, 2, 0, 1),
    Sketcher.Constraint("Vertical", 0),
    Sketcher.Constraint("Vertical", 2),
    Sketcher.Constraint("Horizontal", 3),
    Sketcher.Constraint("Radius", 1, 3.7),
    Sketcher.Constraint("DistanceY", 0, 1, 0, 2, 2.5),
    Sketcher.Constraint("DistanceX", -1, 1, 0, 2, 10.0),
    Sketcher.Constraint("DistanceY", -1, 1, 1, 3, 7.1),
])
pocket14 = body.newObject("PartDesign::Pocket", "Pocket013")
pocket14.Profile = sketch22
pocket14.Length = 7.5

sketch23 = body.newObject("Sketcher::SketchObject", "Sketch022")
sketch23.AttachmentSupport = (doc.getObject("YZ_Plane"), [""])
sketch23.MapMode = "FlatFace"
sketch23.AttachmentOffset = App.Placement(Vector(0, 0, -34.5), App.Rotation())
add_polygon(sketch23, [(13, 14), (-2, 14), (-2, 24), (13, 24)])
add_polygon(sketch23, [(0, 22), (0, 14), (12, 14), (12, 22)])
sketch23.addConstraint([
    Sketcher.Constraint("Horizontal", 0),
    Sketcher.Constraint("Vertical", 1),
    Sketcher.Constraint("Horizontal", 2),
    Sketcher.Constraint("Vertical", 3),
    Sketcher.Constraint("Vertical", 4),
    Sketcher.Constraint("Horizontal", 5),
    Sketcher.Constraint("Vertical", 6),
    Sketcher.Constraint("Horizontal", 7),
    Sketcher.Constraint("PointOnObject", 4, 2, -2),
    Sketcher.Constraint("DistanceX", 5, 1, 5, 2, 12.0),
    Sketcher.Constraint("DistanceY", 1, 1, 1, 2, 10.0),
    Sketcher.Constraint("DistanceX", 0, 2, 0, 1, 14.5),
    Sketcher.Constraint("DistanceY", 4, 2, 4, 1, 7.5),
    Sketcher.Constraint("DistanceX", -1, 1, 2, 2, 13.0),
    Sketcher.Constraint("DistanceY", -1, 1, 4, 2, 14.0),
    Sketcher.Constraint("DistanceY", 6, 2, 2, 2, 2.0),
])
pocket15 = body.newObject("PartDesign::Pocket", "Pocket014")
pocket15.Profile = sketch23
pocket15.Length = 7.5
pocket15.Reversed = True

doc.recompute()
